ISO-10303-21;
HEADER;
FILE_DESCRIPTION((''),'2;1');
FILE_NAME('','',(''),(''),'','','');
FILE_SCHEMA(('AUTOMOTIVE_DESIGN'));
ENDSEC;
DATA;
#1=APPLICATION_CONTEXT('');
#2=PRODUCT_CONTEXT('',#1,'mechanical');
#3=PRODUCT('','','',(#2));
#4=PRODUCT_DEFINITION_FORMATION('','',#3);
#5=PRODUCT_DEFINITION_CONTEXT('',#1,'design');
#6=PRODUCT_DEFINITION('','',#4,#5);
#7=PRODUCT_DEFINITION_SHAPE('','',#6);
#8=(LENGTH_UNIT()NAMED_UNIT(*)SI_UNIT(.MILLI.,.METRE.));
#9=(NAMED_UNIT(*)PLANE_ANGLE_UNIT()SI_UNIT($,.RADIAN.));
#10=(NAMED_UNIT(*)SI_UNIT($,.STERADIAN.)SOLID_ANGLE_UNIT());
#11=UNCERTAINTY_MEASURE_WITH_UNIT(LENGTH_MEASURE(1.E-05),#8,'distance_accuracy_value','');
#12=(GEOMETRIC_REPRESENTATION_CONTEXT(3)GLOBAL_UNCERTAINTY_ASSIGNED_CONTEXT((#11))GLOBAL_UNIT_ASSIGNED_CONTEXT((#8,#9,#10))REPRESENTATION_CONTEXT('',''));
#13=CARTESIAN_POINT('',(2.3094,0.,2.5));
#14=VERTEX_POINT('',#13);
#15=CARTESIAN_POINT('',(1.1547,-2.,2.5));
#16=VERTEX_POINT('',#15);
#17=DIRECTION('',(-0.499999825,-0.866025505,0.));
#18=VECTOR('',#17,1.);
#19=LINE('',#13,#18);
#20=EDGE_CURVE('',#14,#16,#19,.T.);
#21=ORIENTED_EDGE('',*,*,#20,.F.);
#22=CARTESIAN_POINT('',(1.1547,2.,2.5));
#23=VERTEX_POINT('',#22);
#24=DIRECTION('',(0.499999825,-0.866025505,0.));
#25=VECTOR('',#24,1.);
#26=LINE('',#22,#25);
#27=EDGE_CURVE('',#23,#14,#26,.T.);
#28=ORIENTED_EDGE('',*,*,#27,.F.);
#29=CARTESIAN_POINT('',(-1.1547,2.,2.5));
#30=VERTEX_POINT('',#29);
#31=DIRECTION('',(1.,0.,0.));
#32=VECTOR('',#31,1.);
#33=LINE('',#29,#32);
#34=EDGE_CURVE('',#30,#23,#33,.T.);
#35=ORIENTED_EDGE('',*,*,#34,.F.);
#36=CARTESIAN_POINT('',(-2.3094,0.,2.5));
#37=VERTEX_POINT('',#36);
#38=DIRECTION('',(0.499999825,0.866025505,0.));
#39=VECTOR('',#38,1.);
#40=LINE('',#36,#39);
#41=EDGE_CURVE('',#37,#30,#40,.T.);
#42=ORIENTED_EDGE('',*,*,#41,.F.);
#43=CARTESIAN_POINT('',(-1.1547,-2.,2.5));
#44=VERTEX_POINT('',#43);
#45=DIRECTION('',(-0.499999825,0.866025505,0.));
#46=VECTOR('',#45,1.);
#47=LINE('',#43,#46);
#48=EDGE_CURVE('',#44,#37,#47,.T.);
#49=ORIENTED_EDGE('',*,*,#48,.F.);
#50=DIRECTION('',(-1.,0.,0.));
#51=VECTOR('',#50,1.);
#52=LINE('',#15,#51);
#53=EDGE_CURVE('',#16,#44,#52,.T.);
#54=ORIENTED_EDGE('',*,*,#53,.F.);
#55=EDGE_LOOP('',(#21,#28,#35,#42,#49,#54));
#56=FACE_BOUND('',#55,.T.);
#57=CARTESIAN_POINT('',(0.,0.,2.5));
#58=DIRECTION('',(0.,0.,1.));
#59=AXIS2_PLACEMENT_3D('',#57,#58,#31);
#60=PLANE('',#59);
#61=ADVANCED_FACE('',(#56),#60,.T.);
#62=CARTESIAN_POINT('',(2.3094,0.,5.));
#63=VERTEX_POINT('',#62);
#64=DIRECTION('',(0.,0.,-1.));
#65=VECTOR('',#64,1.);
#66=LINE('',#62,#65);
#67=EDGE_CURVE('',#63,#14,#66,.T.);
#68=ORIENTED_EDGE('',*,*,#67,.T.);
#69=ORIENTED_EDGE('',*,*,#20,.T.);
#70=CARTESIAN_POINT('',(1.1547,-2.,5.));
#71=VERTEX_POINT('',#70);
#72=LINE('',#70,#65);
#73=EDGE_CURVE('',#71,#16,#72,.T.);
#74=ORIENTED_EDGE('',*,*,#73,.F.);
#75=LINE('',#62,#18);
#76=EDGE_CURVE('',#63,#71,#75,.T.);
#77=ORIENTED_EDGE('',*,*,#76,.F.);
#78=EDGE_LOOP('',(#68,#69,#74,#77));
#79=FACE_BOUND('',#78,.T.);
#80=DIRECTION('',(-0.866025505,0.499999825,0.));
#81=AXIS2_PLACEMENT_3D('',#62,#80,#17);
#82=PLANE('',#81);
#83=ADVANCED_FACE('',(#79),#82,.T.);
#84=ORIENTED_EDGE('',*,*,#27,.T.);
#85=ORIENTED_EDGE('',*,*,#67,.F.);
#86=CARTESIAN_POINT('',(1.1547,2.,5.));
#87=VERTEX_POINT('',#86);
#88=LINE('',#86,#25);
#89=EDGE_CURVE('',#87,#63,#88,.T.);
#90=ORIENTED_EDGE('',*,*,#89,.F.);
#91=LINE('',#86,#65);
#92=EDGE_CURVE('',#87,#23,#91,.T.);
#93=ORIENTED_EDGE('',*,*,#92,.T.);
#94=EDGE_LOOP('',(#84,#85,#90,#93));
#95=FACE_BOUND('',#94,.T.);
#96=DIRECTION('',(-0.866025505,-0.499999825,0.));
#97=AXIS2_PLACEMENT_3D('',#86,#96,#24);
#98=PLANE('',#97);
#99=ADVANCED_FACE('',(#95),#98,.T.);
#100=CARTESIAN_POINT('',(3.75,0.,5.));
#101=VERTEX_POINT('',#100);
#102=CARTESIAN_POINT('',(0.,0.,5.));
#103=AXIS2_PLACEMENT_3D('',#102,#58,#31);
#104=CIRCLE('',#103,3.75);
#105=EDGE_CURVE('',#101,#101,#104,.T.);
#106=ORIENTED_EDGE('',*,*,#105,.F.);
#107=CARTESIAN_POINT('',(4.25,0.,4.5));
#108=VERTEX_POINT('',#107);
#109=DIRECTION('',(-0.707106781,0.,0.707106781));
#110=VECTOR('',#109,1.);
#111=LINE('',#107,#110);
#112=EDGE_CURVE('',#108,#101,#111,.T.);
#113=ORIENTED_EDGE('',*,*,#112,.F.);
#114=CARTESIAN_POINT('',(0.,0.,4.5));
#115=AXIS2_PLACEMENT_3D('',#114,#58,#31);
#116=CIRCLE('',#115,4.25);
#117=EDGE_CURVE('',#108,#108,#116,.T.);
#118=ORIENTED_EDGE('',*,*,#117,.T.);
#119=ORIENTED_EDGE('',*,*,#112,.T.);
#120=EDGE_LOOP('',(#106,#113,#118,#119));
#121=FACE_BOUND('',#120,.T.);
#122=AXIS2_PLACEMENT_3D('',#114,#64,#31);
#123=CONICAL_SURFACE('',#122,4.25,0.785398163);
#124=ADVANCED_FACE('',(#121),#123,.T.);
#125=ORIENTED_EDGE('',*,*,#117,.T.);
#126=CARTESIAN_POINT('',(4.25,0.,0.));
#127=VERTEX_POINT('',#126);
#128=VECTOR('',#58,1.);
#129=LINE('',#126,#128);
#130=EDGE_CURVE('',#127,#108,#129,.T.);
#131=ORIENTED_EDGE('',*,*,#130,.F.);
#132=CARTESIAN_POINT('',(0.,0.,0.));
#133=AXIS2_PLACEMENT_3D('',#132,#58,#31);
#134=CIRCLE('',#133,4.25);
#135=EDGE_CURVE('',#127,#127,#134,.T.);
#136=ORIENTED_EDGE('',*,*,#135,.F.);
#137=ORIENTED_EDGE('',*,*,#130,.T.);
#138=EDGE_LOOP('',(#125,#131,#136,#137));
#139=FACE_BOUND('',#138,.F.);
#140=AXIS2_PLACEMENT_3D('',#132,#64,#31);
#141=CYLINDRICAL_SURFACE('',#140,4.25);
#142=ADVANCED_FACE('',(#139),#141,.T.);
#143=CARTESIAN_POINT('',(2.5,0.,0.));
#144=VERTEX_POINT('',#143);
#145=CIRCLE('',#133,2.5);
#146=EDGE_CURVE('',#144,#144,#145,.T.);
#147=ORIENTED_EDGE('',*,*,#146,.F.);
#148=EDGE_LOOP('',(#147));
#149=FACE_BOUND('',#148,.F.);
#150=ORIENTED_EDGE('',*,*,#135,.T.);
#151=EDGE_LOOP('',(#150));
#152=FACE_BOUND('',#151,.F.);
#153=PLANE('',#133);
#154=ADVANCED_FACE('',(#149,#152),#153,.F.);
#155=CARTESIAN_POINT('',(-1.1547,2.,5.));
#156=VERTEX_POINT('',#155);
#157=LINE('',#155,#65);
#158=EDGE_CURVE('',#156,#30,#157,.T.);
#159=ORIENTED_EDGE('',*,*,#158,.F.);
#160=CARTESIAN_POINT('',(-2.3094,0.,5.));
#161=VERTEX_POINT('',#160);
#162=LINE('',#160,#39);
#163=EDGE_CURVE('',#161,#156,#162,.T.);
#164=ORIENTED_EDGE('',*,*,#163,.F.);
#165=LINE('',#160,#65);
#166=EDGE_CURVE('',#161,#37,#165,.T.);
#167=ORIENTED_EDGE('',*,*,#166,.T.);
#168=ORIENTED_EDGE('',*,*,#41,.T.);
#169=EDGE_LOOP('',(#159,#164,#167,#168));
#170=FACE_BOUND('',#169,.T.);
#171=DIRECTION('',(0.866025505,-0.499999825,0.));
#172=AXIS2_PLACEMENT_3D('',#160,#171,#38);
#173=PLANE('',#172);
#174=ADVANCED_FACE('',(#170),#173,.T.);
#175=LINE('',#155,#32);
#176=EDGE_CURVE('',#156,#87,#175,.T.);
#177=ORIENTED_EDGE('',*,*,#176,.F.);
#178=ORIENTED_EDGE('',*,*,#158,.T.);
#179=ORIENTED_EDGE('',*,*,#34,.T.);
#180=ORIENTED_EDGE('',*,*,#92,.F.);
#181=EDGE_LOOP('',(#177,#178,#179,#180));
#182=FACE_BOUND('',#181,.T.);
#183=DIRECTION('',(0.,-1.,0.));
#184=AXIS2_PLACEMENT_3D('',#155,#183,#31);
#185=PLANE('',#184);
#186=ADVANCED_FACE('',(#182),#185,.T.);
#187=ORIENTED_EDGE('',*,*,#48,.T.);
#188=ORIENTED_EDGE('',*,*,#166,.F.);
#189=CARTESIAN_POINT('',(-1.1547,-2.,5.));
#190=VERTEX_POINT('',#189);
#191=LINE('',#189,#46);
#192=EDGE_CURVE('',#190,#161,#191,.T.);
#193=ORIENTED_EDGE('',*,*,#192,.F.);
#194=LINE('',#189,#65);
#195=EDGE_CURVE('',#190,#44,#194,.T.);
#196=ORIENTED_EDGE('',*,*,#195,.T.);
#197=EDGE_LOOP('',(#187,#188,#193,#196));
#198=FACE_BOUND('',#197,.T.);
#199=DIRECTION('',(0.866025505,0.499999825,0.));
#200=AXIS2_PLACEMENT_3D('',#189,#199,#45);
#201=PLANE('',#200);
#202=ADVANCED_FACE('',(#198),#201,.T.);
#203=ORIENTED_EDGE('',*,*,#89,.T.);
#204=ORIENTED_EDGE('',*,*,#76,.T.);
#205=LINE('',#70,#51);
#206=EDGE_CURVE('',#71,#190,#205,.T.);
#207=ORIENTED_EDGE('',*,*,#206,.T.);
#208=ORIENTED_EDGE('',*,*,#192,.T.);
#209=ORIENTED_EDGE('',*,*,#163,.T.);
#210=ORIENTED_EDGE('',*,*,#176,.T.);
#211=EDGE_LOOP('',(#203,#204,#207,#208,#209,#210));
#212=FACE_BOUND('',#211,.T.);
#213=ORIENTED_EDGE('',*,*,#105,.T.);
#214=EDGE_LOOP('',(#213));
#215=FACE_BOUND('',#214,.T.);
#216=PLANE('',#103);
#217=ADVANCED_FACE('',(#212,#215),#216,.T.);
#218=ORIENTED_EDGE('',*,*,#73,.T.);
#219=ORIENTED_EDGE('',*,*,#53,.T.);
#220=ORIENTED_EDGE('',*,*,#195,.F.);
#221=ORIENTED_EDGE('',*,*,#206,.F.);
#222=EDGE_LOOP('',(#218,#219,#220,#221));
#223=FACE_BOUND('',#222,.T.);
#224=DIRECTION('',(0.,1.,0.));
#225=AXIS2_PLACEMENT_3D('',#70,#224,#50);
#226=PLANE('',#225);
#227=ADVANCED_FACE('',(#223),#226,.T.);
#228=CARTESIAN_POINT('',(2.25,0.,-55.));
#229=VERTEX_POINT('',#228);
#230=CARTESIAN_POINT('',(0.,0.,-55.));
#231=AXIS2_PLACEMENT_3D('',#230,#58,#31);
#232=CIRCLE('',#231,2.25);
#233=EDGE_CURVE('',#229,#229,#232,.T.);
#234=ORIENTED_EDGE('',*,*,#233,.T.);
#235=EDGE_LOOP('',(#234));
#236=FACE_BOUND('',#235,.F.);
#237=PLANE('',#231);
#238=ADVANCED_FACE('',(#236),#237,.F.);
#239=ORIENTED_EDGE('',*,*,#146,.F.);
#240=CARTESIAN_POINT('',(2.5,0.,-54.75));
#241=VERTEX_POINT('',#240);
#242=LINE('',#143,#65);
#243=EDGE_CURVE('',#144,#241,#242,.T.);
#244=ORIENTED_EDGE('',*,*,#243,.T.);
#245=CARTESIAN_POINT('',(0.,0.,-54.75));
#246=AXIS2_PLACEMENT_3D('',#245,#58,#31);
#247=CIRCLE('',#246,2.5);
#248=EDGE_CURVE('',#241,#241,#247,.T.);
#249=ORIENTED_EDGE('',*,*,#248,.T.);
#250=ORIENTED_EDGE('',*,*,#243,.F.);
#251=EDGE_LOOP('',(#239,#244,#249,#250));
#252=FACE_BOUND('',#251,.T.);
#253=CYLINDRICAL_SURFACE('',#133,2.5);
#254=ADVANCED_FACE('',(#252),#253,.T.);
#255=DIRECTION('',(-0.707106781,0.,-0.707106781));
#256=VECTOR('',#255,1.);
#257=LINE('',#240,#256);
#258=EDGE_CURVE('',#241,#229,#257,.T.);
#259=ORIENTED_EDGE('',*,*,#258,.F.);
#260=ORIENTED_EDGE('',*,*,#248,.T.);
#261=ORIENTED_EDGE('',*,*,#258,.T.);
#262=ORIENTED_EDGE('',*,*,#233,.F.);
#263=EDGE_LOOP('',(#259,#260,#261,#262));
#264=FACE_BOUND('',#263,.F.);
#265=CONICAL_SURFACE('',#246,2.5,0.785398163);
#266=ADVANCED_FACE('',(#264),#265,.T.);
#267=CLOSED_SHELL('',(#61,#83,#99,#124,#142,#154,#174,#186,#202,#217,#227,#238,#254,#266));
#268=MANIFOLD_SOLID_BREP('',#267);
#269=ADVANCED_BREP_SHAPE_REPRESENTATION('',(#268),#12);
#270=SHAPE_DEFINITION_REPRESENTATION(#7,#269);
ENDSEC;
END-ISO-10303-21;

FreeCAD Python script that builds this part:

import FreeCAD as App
import Part
import Sketcher
Q = App.Units.Quantity


def edges_at(feature, points):
    """Names of the edges that pass closest to the given points."""
    edges = feature.Shape.Edges
    near = lambda p: min(range(len(edges)), key=lambda i: edges[i].distToShape(Part.Vertex(*p))[0])
    return sorted({f"Edge{near(p) + 1}" for p in points})


def add_polygon(sketch, points):
    """Adds a closed chain of lines whose ends are joined by coincident constraints."""
    first, n = sketch.GeometryCount, len(points)
    for a, b in zip(points, points[1:] + points[:1]):
        sketch.addGeometry(Part.LineSegment(App.Vector(*a, 0), App.Vector(*b, 0)), False)
    for i in range(n):
        sketch.addConstraint(Sketcher.Constraint("Coincident", first + i, 2, first + (i + 1) % n, 1))

doc = App.newDocument("Part")
params = doc.addObject("Spreadsheet::Sheet", "Params")
for row, (alias, value) in enumerate([
    ("sketch1_diameter", "5 mm"),
    ("pad1_length", "55 mm"),
    ("sketch2_diameter", "8.5 mm"),
    ("pad2_length", "5 mm"),
    ("pocket1_length", "2.5 mm"),
    ("chamfer_size", "0.5 mm"),
    ("chamfer2_size", "0.25 mm"),
], start=1):
    params.set(f"A{row}", alias)
    params.set(f"B{row}", "=" + value)
    params.setAlias(f"B{row}", alias)

body = doc.addObject("PartDesign::Body", "Body")

sketch1 = doc.addObject("Sketcher::SketchObject", "Sketch")
body.addObject(sketch1)
sketch1.AttachmentSupport = (doc.XY_Plane, [""])
sketch1.MapMode = "FlatFace"
sketch1.addGeometry(Part.Circle(App.Vector(0, 0, 0), App.Vector(0, 0, 1), 2.5), False)
sketch1.addConstraint(Sketcher.Constraint("Coincident", 0, 3, -1, 1))
sketch1.addConstraint(Sketcher.Constraint("Diameter", 0, Q("5 mm")))
sketch1.setExpression("Constraints[1]", "Params.sketch1_diameter")
pad1 = doc.addObject("PartDesign::Pad", "Pad")
body.addObject(pad1)
pad1.Profile = sketch1
pad1.setExpression("Length", "Params.pad1_length")
pad1.Reversed = True

sketch2 = doc.addObject("Sketcher::SketchObject", "Sketch001")
body.addObject(sketch2)
sketch2.AttachmentSupport = (doc.XY_Plane, [""])
sketch2.MapMode = "FlatFace"
sketch2.addGeometry(Part.Circle(App.Vector(0, 0, 0), App.Vector(0, 0, 1), 4.25), False)
sketch2.addConstraint(Sketcher.Constraint("Coincident", 0, 3, -1, 1))
sketch2.addConstraint(Sketcher.Constraint("Diameter", 0, Q("8.5 mm")))
sketch2.setExpression("Constraints[1]", "Params.sketch2_diameter")
pad2 = doc.addObject("PartDesign::Pad", "Pad001")
body.addObject(pad2)
pad2.Profile = sketch2
pad2.setExpression("Length", "Params.pad2_length")

sketch3 = doc.addObject("Sketcher::SketchObject", "Sketch002")
body.addObject(sketch3)
sketch3.AttachmentSupport = (doc.XY_Plane, [""])
sketch3.MapMode = "FlatFace"
sketch3.AttachmentOffset = App.Placement(App.Vector(0, 0, 5), App.Rotation())
add_polygon(sketch3, [(1.1547, -2), (2.3094, 0), (1.1547, 2), (-1.1547, 2), (-2.3094, 0), (-1.1547, -2)])
sketch3.addConstraint(Sketcher.Constraint("Horizontal", 2))
sketch3.addConstraint(Sketcher.Constraint("Horizontal", 5))
sketch3.addConstraint(Sketcher.Constraint("Symmetric", 0, 2, 3, 2, -1, 1))
sketch3.addConstraint(Sketcher.Constraint("Symmetric", 1, 2, 4, 2, -1, 1))
sketch3.addConstraint(Sketcher.Constraint("PointOnObject", 0, 2, -1))
sketch3.addConstraint(Sketcher.Constraint("Parallel", 0, 3))
sketch3.addConstraint(Sketcher.Constraint("Vertical", 2, 2, 4, 2))
sketch3.addConstraint(Sketcher.Constraint("DistanceY", 4, 2, 2, 2, Q("4 mm")))
sketch3.addConstraint(Sketcher.Constraint("Angle", 0, Q("60 deg")))
sketch3.addConstraint(Sketcher.Constraint("DistanceX", 2, 2, 2, 1, Q("2.3094 mm")))
pocket1 = doc.addObject("PartDesign::Pocket", "Pocket")
body.addObject(pocket1)
pocket1.Profile = sketch3
pocket1.setExpression("Length", "Params.pocket1_length")
doc.recompute()

chamfer = doc.addObject("PartDesign::Chamfer", "Chamfer")
body.addObject(chamfer)
chamfer.Base = (pocket1, edges_at(pocket1, [(-4.25, 0, 5)]))
chamfer.setExpression("Size", "Params.chamfer_size")
doc.recompute()

chamfer2 = doc.addObject("PartDesign::Chamfer", "Chamfer001")
body.addObject(chamfer2)
chamfer2.Base = (chamfer, edges_at(chamfer, [(-2.5, 0, -55)]))
chamfer2.setExpression("Size", "Params.chamfer2_size")

doc.recompute()
